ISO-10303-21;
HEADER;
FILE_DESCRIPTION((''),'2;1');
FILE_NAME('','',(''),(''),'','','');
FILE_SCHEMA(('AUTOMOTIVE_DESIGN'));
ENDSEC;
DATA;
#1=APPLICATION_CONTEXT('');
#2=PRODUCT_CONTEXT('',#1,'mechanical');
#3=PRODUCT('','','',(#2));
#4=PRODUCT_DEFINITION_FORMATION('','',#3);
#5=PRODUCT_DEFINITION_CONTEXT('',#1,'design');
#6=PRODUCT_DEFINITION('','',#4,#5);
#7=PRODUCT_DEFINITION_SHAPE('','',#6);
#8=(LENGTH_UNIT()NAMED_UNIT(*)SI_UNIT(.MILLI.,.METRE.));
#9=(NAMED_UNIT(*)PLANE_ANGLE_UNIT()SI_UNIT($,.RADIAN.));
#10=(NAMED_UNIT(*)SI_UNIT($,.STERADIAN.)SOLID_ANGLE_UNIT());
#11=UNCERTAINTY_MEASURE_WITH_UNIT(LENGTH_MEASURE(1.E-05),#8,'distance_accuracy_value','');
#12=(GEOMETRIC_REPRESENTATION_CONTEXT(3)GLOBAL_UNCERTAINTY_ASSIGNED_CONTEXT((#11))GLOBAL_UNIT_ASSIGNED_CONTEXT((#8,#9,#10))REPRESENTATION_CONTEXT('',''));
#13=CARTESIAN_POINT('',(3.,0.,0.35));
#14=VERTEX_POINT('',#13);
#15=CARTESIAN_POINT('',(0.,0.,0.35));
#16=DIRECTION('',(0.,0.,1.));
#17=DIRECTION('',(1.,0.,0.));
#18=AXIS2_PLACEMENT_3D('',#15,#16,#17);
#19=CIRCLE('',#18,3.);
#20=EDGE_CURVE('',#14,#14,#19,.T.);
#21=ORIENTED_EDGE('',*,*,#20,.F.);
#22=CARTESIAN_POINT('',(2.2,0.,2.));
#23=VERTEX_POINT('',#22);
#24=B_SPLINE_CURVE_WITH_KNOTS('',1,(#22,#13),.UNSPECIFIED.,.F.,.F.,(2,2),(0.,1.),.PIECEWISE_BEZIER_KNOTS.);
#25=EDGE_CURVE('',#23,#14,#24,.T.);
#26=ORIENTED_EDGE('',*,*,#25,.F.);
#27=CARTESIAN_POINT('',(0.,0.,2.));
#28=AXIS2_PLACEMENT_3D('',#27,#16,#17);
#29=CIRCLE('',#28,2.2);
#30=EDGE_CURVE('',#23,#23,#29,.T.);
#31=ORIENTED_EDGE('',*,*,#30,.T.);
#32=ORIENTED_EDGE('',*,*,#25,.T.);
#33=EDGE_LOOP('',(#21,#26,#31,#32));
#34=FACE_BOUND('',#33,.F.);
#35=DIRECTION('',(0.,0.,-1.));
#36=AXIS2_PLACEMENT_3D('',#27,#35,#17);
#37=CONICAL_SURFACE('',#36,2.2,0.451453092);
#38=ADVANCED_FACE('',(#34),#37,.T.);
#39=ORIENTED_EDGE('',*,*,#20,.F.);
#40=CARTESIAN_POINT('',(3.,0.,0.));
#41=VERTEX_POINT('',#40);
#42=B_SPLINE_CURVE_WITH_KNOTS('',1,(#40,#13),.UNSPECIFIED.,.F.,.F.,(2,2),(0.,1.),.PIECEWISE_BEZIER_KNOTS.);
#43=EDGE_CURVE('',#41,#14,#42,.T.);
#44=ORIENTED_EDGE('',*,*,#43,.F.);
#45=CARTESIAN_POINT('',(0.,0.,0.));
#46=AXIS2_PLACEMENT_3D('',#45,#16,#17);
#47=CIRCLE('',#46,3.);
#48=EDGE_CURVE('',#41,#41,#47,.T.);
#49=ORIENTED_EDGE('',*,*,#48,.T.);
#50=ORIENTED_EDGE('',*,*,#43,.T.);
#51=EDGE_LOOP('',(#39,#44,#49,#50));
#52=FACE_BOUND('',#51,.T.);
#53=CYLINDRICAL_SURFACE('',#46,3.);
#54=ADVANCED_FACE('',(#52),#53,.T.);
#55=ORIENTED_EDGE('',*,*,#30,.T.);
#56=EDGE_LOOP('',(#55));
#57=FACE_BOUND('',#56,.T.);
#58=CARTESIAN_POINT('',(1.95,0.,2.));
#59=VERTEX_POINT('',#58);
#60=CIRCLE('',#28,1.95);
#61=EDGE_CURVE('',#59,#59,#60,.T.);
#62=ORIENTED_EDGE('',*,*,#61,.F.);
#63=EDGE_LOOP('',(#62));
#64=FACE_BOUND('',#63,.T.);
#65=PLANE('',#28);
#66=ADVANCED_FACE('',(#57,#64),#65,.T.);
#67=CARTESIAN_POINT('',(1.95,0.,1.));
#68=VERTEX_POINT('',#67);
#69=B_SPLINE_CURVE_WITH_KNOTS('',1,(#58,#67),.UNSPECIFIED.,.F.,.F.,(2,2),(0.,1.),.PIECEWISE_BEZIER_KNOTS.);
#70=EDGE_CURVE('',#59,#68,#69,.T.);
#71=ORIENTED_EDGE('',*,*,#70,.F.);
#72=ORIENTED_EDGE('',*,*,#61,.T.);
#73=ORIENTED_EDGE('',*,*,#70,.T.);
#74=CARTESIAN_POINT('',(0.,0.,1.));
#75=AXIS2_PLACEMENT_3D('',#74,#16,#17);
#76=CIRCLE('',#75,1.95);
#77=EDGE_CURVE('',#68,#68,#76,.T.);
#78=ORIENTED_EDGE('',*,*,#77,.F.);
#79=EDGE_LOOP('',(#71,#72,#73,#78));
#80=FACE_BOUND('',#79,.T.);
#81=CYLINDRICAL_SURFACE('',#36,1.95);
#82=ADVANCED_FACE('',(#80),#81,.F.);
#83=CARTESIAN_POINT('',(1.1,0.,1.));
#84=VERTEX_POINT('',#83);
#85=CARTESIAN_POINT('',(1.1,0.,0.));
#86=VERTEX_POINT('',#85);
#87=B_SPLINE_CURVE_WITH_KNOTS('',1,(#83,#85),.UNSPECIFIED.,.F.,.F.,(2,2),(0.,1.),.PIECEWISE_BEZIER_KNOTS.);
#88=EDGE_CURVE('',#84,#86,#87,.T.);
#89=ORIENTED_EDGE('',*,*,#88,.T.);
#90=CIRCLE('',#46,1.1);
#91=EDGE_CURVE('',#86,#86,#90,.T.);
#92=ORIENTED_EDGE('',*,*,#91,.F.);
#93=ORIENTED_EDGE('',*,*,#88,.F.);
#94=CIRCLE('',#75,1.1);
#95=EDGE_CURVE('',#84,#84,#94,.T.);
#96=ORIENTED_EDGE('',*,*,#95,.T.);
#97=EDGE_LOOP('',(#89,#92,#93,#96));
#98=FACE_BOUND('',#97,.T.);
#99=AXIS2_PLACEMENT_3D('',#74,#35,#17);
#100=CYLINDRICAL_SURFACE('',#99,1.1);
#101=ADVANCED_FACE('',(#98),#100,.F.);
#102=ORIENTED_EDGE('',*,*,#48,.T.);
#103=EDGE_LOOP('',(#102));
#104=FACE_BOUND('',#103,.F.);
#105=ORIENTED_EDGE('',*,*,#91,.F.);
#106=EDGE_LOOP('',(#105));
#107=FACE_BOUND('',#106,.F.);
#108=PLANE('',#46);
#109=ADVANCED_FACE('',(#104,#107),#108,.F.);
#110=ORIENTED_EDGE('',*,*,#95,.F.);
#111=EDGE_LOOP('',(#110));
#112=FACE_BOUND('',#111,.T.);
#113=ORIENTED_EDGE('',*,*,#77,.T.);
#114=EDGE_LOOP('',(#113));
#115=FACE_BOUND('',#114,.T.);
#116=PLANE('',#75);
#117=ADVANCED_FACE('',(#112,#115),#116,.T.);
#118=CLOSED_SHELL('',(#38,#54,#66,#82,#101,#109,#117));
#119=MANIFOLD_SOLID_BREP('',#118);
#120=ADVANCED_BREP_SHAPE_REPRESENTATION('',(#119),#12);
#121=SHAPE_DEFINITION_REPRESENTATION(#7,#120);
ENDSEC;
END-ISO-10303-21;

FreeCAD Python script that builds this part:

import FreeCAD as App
import Part
import Sketcher

V = App.Vector
Q = App.Units.Quantity

doc = App.newDocument("Part")
params = doc.addObject("Spreadsheet::Sheet", "Params")
for row, (alias, value) in enumerate([
    ("sketch1_diameter", "6 mm"),
    ("sketch2_diameter", "6 mm"),
    ("sketch3_diameter", "4.4 mm"),
    ("sketch4_diameter", "6 mm"),
    ("sketch5_diameter", "3.9 mm"),
    ("sketch6_diameter", "3.9 mm"),
    ("sketch7_diameter", "2.2 mm"),
    ("sketch8_diameter", "2.2 mm"),
], start=1):
    params.set(f"A{row}", alias)
    params.set(f"B{row}", "=" + value)
    params.setAlias(f"B{row}", alias)

body = doc.addObject("PartDesign::Body", "Body")

sketch1 = body.newObject("Sketcher::SketchObject", "Sketch")
sketch1.AttachmentSupport = (doc.getObject("XY_Plane"), [""])
sketch1.MapMode = "FlatFace"
sketch1.addGeometry(Part.Circle(V(0, 0, 0), V(0, 0, 1), 3), False)
sketch1.addConstraint([
    Sketcher.Constraint("Coincident", 0, 3, -1, 1),
    Sketcher.Constraint("Diameter", 0, Q("6 mm")),
])
sketch1.setExpression("Constraints[1]", "Params.sketch1_diameter")

sketch2 = body.newObject("Sketcher::SketchObject", "Sketch001")
sketch2.AttachmentSupport = (doc.getObject("XY_Plane"), [""])
sketch2.MapMode = "FlatFace"
sketch2.AttachmentOffset = App.Placement(V(0, 0, 0.35), App.Rotation())
sketch2.addGeometry(Part.Circle(V(0, 0, 0), V(0, 0, 1), 3), False)
sketch2.addConstraint([
    Sketcher.Constraint("Coincident", 0, 3, -1, 1),
    Sketcher.Constraint("Diameter", 0, Q("6 mm")),
])
sketch2.setExpression("Constraints[1]", "Params.sketch2_diameter")

additiveloft = body.newObject("PartDesign::AdditiveLoft", "AdditiveLoft")
additiveloft.Profile = sketch1
additiveloft.Sections = [sketch2]

sketch3 = body.newObject("Sketcher::SketchObject", "Sketch002")
sketch3.AttachmentSupport = (doc.getObject("XY_Plane"), [""])
sketch3.MapMode = "FlatFace"
sketch3.AttachmentOffset = App.Placement(V(0, 0, 2), App.Rotation())
sketch3.addGeometry(Part.Circle(V(0, 0, 0), V(0, 0, 1), 2.2), False)
sketch3.addConstraint([
    Sketcher.Constraint("Coincident", 0, 3, -1, 1),
    Sketcher.Constraint("Diameter", 0, Q("4.4 mm")),
])
sketch3.setExpression("Constraints[1]", "Params.sketch3_diameter")

sketch4 = body.newObject("Sketcher::SketchObject", "Sketch003")
sketch4.AttachmentSupport = (doc.getObject("XY_Plane"), [""])
sketch4.MapMode = "FlatFace"
sketch4.AttachmentOffset = App.Placement(V(0, 0, 0.35), App.Rotation())
sketch4.addGeometry(Part.Circle(V(0, 0, 0), V(0, 0, 1), 3), False)
sketch4.addConstraint([
    Sketcher.Constraint("Coincident", 0, 3, -1, 1),
    Sketcher.Constraint("Diameter", 0, Q("6 mm")),
])
sketch4.setExpression("Constraints[1]", "Params.sketch4_diameter")

additiveloft2 = body.newObject("PartDesign::AdditiveLoft", "AdditiveLoft001")
additiveloft2.Profile = sketch3
additiveloft2.Sections = [sketch4]

sketch5 = body.newObject("Sketcher::SketchObject", "Sketch004")
sketch5.AttachmentSupport = (doc.getObject("XY_Plane"), [""])
sketch5.MapMode = "FlatFace"
sketch5.AttachmentOffset = App.Placement(V(0, 0, 2), App.Rotation())
sketch5.addGeometry(Part.Circle(V(0, 0, 0), V(0, 0, 1), 1.9), False)
sketch5.addConstraint([
    Sketcher.Constraint("Coincident", 0, 3, -1, 1),
    Sketcher.Constraint("Diameter", 0, Q("3.9 mm")),
])
sketch5.setExpression("Constraints[1]", "Params.sketch5_diameter")

sketch6 = body.newObject("Sketcher::SketchObject", "Sketch005")
sketch6.AttachmentSupport = (doc.getObject("XY_Plane"), [""])
sketch6.MapMode = "FlatFace"
sketch6.AttachmentOffset = App.Placement(V(0, 0, 1), App.Rotation())
sketch6.addGeometry(Part.Circle(V(0, 0, 0), V(0, 0, 1), 1.9), False)
sketch6.addConstraint([
    Sketcher.Constraint("Coincident", 0, 3, -1, 1),
    Sketcher.Constraint("Diameter", 0, Q("3.9 mm")),
])
sketch6.setExpression("Constraints[1]", "Params.sketch6_diameter")

subtractiveloft = body.newObject("PartDesign::SubtractiveLoft", "SubtractiveLoft")
subtractiveloft.Profile = sketch5
subtractiveloft.Sections = [sketch6]

sketch7 = body.newObject("Sketcher::SketchObject", "Sketch006")
sketch7.AttachmentSupport = (doc.getObject("XY_Plane"), [""])
sketch7.MapMode = "FlatFace"
sketch7.AttachmentOffset = App.Placement(V(0, 0, 1), App.Rotation())
sketch7.addGeometry(Part.Circle(V(0, 0, 0), V(0, 0, 1), 1.1), False)
sketch7.addConstraint([
    Sketcher.Constraint("Coincident", 0, 3, -1, 1),
    Sketcher.Constraint("Diameter", 0, Q("2.2 mm")),
])
sketch7.setExpression("Constraints[1]", "Params.sketch7_diameter")

sketch8 = body.newObject("Sketcher::SketchObject", "Sketch007")
sketch8.AttachmentSupport = (doc.getObject("XY_Plane"), [""])
sketch8.MapMode = "FlatFace"
sketch8.addGeometry(Part.Circle(V(0, 0, 0), V(0, 0, 1), 1.1), False)
sketch8.addConstraint([
    Sketcher.Constraint("Coincident", 0, 3, -1, 1),
    Sketcher.Constraint("Diameter", 0, Q("2.2 mm")),
])
sketch8.setExpression("Constraints[1]", "Params.sketch8_diameter")

subtractiveloft2 = body.newObject("PartDesign::SubtractiveLoft", "SubtractiveLoft001")
subtractiveloft2.Profile = sketch7
subtractiveloft2.Sections = [sketch8]

doc.recompute()
